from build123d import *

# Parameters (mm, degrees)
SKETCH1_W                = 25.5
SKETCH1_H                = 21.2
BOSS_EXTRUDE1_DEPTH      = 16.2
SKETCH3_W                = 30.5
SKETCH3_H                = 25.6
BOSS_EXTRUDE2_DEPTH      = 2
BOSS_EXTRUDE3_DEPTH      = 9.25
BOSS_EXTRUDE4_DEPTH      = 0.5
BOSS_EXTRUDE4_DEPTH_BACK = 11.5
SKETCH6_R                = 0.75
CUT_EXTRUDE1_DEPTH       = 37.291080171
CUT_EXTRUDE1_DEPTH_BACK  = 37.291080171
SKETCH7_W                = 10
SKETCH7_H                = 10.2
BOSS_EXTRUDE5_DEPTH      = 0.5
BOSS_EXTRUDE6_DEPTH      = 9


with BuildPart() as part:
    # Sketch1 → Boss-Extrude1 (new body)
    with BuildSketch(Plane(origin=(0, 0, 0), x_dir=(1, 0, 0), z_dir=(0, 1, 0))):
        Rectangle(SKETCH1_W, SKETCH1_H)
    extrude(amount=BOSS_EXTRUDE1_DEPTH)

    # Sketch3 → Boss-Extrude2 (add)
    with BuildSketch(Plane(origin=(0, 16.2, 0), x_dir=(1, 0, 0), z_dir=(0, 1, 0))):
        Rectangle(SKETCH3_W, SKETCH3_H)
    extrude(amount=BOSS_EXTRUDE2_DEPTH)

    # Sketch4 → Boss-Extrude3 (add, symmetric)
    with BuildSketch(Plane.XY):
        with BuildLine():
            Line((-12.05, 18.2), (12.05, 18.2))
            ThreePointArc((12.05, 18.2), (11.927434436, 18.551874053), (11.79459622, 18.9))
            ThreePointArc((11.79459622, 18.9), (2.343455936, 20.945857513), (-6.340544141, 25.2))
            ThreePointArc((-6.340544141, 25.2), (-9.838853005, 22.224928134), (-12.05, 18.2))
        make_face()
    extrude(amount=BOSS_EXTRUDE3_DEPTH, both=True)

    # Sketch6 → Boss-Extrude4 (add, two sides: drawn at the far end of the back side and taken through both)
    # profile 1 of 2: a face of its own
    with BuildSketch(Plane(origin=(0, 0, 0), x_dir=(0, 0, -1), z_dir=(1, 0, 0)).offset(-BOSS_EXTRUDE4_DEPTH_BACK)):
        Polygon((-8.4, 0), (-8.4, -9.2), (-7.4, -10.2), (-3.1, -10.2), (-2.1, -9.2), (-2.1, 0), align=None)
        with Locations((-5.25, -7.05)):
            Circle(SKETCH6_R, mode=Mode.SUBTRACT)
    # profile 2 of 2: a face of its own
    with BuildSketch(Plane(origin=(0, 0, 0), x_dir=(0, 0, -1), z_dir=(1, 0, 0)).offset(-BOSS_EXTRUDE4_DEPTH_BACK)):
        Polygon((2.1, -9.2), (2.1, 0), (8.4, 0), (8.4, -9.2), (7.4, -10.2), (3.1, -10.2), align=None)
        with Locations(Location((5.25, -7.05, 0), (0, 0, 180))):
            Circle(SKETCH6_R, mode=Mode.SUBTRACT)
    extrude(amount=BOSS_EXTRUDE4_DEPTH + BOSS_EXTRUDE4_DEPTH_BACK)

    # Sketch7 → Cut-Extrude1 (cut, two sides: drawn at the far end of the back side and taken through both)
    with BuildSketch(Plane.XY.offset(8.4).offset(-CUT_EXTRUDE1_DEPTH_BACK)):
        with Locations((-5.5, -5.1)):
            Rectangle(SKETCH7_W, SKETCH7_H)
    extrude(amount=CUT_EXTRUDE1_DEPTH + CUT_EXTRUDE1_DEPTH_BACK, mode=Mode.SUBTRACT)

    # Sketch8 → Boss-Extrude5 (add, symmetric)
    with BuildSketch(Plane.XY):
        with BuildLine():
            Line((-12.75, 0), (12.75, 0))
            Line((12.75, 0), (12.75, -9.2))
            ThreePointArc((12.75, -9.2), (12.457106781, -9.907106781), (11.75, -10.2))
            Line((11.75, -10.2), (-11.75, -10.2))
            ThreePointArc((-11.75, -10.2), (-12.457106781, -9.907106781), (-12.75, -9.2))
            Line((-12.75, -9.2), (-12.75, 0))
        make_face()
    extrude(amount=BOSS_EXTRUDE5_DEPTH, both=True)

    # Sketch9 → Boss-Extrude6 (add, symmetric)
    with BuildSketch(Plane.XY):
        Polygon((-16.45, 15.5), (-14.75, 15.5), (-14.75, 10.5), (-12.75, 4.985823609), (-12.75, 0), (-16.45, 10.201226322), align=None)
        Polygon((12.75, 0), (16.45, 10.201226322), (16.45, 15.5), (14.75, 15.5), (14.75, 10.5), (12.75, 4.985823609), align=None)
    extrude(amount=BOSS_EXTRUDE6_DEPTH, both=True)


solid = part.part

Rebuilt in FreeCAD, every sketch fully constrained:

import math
import FreeCAD as App
import Part
import Sketcher


def add_polygon(sketch, points):
    """Adds a closed chain of lines whose ends are joined by coincident constraints."""
    first, n = sketch.GeometryCount, len(points)
    for a, b in zip(points, points[1:] + points[:1]):
        sketch.addGeometry(Part.LineSegment(App.Vector(*a, 0), App.Vector(*b, 0)), False)
    for i in range(n):
        sketch.addConstraint(Sketcher.Constraint("Coincident", first + i, 2, first + (i + 1) % n, 1))

doc = App.newDocument("Part")
params = doc.addObject("Spreadsheet::Sheet", "Params")
for row, (alias, value) in enumerate([
    ("sketch1_width", "25.5 mm"),
    ("sketch1_height", "21.2 mm"),
    ("pad1_length", "16.2 mm"),
    ("sketch2_width", "30.5 mm"),
    ("sketch2_height", "25.6 mm"),
    ("pad2_length", "2 mm"),
    ("sketch3_radius", "40 mm"),
    ("sketch3_width", "24.1 mm"),
    ("pad3_length", "18.5 mm"),
    ("sketch4_diameter", "1.5 mm"),
    ("sketch4_width", "9.2 mm"),
    ("sketch4_height", "4.3 mm"),
    ("sketch4_height2", "6.3 mm"),
    ("pad4_length", "0.5 mm"),
    ("pad4_length2", "11.5 mm"),
    ("sketch5_width", "10 mm"),
    ("sketch5_height", "10.2 mm"),
    ("sketch6_radius", "1 mm"),
    ("sketch6_width", "25.5 mm"),
    ("sketch6_height", "9.2 mm"),
    ("pad5_length", "1 mm"),
    ("sketch7_height", "5 mm"),
    ("sketch7_width", "1.7 mm"),
    ("pad6_length", "18 mm"),
], start=1):
    params.set(f"A{row}", alias)
    params.set(f"B{row}", "=" + value)
    params.setAlias(f"B{row}", alias)

body = doc.addObject("PartDesign::Body", "Body")

sketch1 = body.newObject("Sketcher::SketchObject", "Sketch")
sketch1.AttachmentSupport = (doc.getObject("XZ_Plane"), [""])
sketch1.MapMode = "FlatFace"
add_polygon(sketch1, [(-12.75, -10.6), (-12.75, 10.6), (12.75, 10.6), (12.75, -10.6)])
sketch1.addConstraint([
    Sketcher.Constraint("Vertical", 0),
    Sketcher.Constraint("Horizontal", 1),
    Sketcher.Constraint("Vertical", 2),
    Sketcher.Constraint("Horizontal", 3),
    Sketcher.Constraint("Symmetric", 0, 2, 2, 2, -1, 1),
    Sketcher.Constraint("DistanceX", 1, 1, 1, 2, 25.5),
    Sketcher.Constraint("DistanceY", 0, 1, 0, 2, 21.2),
])
sketch1.setExpression("Constraints[9]", "Params.sketch1_width")
sketch1.setExpression("Constraints[10]", "Params.sketch1_height")
pad1 = body.newObject("PartDesign::Pad", "Pad")
pad1.Profile = sketch1
pad1.setExpression("Length", "Params.pad1_length")
pad1.Reversed = True

sketch2 = body.newObject("Sketcher::SketchObject", "Sketch001")
sketch2.AttachmentSupport = (doc.getObject("XZ_Plane"), [""])
sketch2.MapMode = "FlatFace"
sketch2.AttachmentOffset = App.Placement(App.Vector(0, 0, -16.2), App.Rotation())
add_polygon(sketch2, [(-15.25, -12.8), (-15.25, 12.8), (15.25, 12.8), (15.25, -12.8)])
sketch2.addConstraint([
    Sketcher.Constraint("Vertical", 0),
    Sketcher.Constraint("Horizontal", 1),
    Sketcher.Constraint("Vertical", 2),
    Sketcher.Constraint("Horizontal", 3),
    Sketcher.Constraint("Symmetric", 0, 2, 2, 2, -1, 1),
    Sketcher.Constraint("DistanceX", 1, 1, 1, 2, 30.5),
    Sketcher.Constraint("DistanceY", 0, 1, 0, 2, 25.6),
])
sketch2.setExpression("Constraints[9]", "Params.sketch2_width")
sketch2.setExpression("Constraints[10]", "Params.sketch2_height")
pad2 = body.newObject("PartDesign::Pad", "Pad001")
pad2.Profile = sketch2
pad2.setExpression("Length", "Params.pad2_length")
pad2.Reversed = True

sketch3 = body.newObject("Sketcher::SketchObject", "Sketch002")
sketch3.AttachmentSupport = (doc.getObject("XY_Plane"), [""])
sketch3.MapMode = "FlatFace"
sketch3.addGeometry([
    Part.LineSegment(App.Vector(-12.05, 18.2, 0), App.Vector(12.05, 18.2, 0)),
    Part.ArcOfCircle(Part.Circle(App.Vector(0, 14.2, 0), App.Vector(0, 0, 1), 12.696554), math.radians(18.363597), math.radians(21.726667)),
    Part.ArcOfCircle(Part.Circle(App.Vector(15.469643, 58.730818, 0), App.Vector(0, 0, 1), 40), math.radians(-123.04207), math.radians(-95.271551)),
    Part.ArcOfCircle(Part.Circle(App.Vector(0, 14.2, 0), App.Vector(0, 0, 1), 12.696555), math.radians(119.959712), math.radians(161.636403)),
], False)
sketch3.addConstraint([
    Sketcher.Constraint("Coincident", 0, 2, 1, 1),
    Sketcher.Constraint("Coincident", 1, 2, 2, 2),
    Sketcher.Constraint("Coincident", 2, 1, 3, 1),
    Sketcher.Constraint("Coincident", 3, 2, 0, 1),
    Sketcher.Constraint("Horizontal", 0),
    Sketcher.Constraint("Coincident", 3, 3, 1, 3),
    Sketcher.Constraint("Equal", 1, 3),
    Sketcher.Constraint("PointOnObject", 1, 3, -2),
    Sketcher.Constraint("Radius", 2, 40.0),
    Sketcher.Constraint("DistanceX", 0, 1, 0, 2, 24.1),
    Sketcher.Constraint("DistanceY", 1, 3, 0, 2, 4.0),
    Sketcher.Constraint("DistanceY", 3, 3, 2, 1, 11.0),
    Sketcher.Constraint("DistanceY", -1, 1, 1, 3, 14.2),
    Sketcher.Constraint("DistanceY", -1, 1, 1, 2, 18.9),
])
sketch3.setExpression("Constraints[8]", "Params.sketch3_radius")
sketch3.setExpression("Constraints[9]", "Params.sketch3_width")
pad3 = body.newObject("PartDesign::Pad", "Pad002")
pad3.Profile = sketch3
pad3.setExpression("Length", "Params.pad3_length")
pad3.Midplane = True

sketch4 = body.newObject("Sketcher::SketchObject", "Sketch003")
sketch4.AttachmentSupport = (doc.getObject("YZ_Plane"), [""])
sketch4.MapMode = "FlatFace"
add_polygon(sketch4, [(0, 8.4), (-9.2, 8.4), (-10.2, 7.4), (-10.2, 3.1), (-9.2, 2.1), (0, 2.1)])
sketch4.addGeometry(Part.Circle(App.Vector(-7.05, 5.25, 0), App.Vector(0, 0, 1), 0.75), False)
add_polygon(sketch4, [(0, -2.1), (-9.2, -2.1), (-10.2, -3.1), (-10.2, -7.4), (-9.2, -8.4), (0, -8.4)])
sketch4.addGeometry(Part.Circle(App.Vector(-7.05, -5.25, 0), App.Vector(0, 0, 1), 0.75), False)
sketch4.addConstraint([
    Sketcher.Constraint("Horizontal", 0),
    Sketcher.Constraint("Vertical", 2),
    Sketcher.Constraint("Horizontal", 4),
    Sketcher.Constraint("Vertical", 5),
    Sketcher.Constraint("Horizontal", 7),
    Sketcher.Constraint("Vertical", 9),
    Sketcher.Constraint("Horizontal", 11),
    Sketcher.Constraint("Vertical", 12),
    Sketcher.Constraint("Equal", 6, 13),
    Sketcher.Constraint("Symmetric", 5, 2, 11, 2, -1, 1),
    Sketcher.Constraint("Symmetric", 6, 3, 13, 3, -1),
    Sketcher.Constraint("Symmetric", 3, 2, 7, 2, -1),
    Sketcher.Constraint("Symmetric", 2, 2, 8, 2, -1),
    Sketcher.Constraint("PointOnObject", 4, 2, -2),
    Sketcher.Constraint("Perpendicular", 1, 3),
    Sketcher.Constraint("Perpendicular", 3, 8),
    Sketcher.Constraint("Perpendicular", 8, 10),
    Sketcher.Constraint("Vertical", 0, 2, 3, 2),
    Sketcher.Constraint("Vertical", 7, 2, 10, 2),
    Sketcher.Constraint("Diameter", 6, 1.5),
    Sketcher.Constraint("DistanceX", 0, 2, 0, 1, 9.2),
    Sketcher.Constraint("DistanceY", 2, 2, 2, 1, 4.3),
    Sketcher.Constraint("DistanceY", 5, 1, 5, 2, 6.3),
    Sketcher.Constraint("DistanceY", -1, 1, 0, 2, 8.4),
    Sketcher.Constraint("DistanceY", 13, 3, 6, 3, 10.5),
    Sketcher.Constraint("DistanceX", 6, 3, -1, 1, 7.05),
])
sketch4.setExpression("Constraints[31]", "Params.sketch4_diameter")
sketch4.setExpression("Constraints[32]", "Params.sketch4_width")
sketch4.setExpression("Constraints[33]", "Params.sketch4_height")
sketch4.setExpression("Constraints[34]", "Params.sketch4_height2")
pad4 = body.newObject("PartDesign::Pad", "Pad003")
pad4.Profile = sketch4
pad4.Type = "TwoLengths"
pad4.setExpression("Length", "Params.pad4_length")
pad4.setExpression("Length2", "Params.pad4_length2")

sketch5 = body.newObject("Sketcher::SketchObject", "Sketch004")
sketch5.AttachmentSupport = (doc.getObject("XY_Plane"), [""])
sketch5.MapMode = "FlatFace"
sketch5.AttachmentOffset = App.Placement(App.Vector(0, 0, 8.4), App.Rotation())
add_polygon(sketch5, [(-10.5, 0), (-10.5, -10.2), (-0.5, -10.2), (-0.5, 0)])
sketch5.addConstraint([
    Sketcher.Constraint("Vertical", 0),
    Sketcher.Constraint("Horizontal", 1),
    Sketcher.Constraint("Vertical", 2),
    Sketcher.Constraint("Horizontal", 3),
    Sketcher.Constraint("PointOnObject", 2, 2, -1),
    Sketcher.Constraint("DistanceX", 1, 1, 1, 2, 10.0),
    Sketcher.Constraint("DistanceY", 0, 2, 0, 1, 10.2),
    Sketcher.Constraint("DistanceX", 0, 2, -1, 1, 10.5),
])
sketch5.setExpression("Constraints[9]", "Params.sketch5_width")
sketch5.setExpression("Constraints[10]", "Params.sketch5_height")
pocket1 = body.newObject("PartDesign::Pocket", "Pocket")
pocket1.Profile = sketch5
pocket1.Type = "ThroughAll"
pocket1.Midplane = True

sketch6 = body.newObject("Sketcher::SketchObject", "Sketch005")
sketch6.AttachmentSupport = (doc.getObject("XY_Plane"), [""])
sketch6.MapMode = "FlatFace"
sketch6.addGeometry([
    Part.LineSegment(App.Vector(12.75, 0, 0), App.Vector(-12.75, 0, 0)),
    Part.LineSegment(App.Vector(-12.75, 0, 0), App.Vector(-12.75, -9.2, 0)),
    Part.ArcOfCircle(Part.Circle(App.Vector(-11.75, -9.2, 0), App.Vector(0, 0, 1), 1), math.radians(-180), math.radians(-90)),
    Part.LineSegment(App.Vector(-11.75, -10.2, 0), App.Vector(11.75, -10.2, 0)),
    Part.ArcOfCircle(Part.Circle(App.Vector(11.75, -9.2, 0), App.Vector(0, 0, 1), 1), math.radians(-90), math.radians(0)),
    Part.LineSegment(App.Vector(12.75, -9.2, 0), App.Vector(12.75, 0, 0)),
], False)
sketch6.addConstraint([
    Sketcher.Constraint("Coincident", 0, 2, 1, 1),
    Sketcher.Constraint("Tangent", 1, 2, 2, 1),
    Sketcher.Constraint("Tangent", 2, 2, 3, 1),
    Sketcher.Constraint("Tangent", 3, 2, 4, 1),
    Sketcher.Constraint("Tangent", 4, 2, 5, 1),
    Sketcher.Constraint("Coincident", 5, 2, 0, 1),
    Sketcher.Constraint("Horizontal", 0),
    Sketcher.Constraint("Vertical", 1),
    Sketcher.Constraint("Horizontal", 3),
    Sketcher.Constraint("Vertical", 5),
    Sketcher.Constraint("Equal", 2, 4),
    Sketcher.Constraint("Symmetric", 0, 2, 5, 2, -1, 1),
    Sketcher.Constraint("Radius", 2, 1.0),
    Sketcher.Constraint("DistanceX", 0, 2, 0, 1, 25.5),
    Sketcher.Constraint("DistanceY", 1, 2, 1, 1, 9.2),
])
sketch6.setExpression("Constraints[12]", "Params.sketch6_radius")
sketch6.setExpression("Constraints[13]", "Params.sketch6_width")
sketch6.setExpression("Constraints[14]", "Params.sketch6_height")
pad5 = body.newObject("PartDesign::Pad", "Pad004")
pad5.Profile = sketch6
pad5.setExpression("Length", "Params.pad5_length")
pad5.Midplane = True

sketch7 = body.newObject("Sketcher::SketchObject", "Sketch006")
sketch7.AttachmentSupport = (doc.getObject("XY_Plane"), [""])
sketch7.MapMode = "FlatFace"
add_polygon(sketch7, [(-14.75, 15.5), (-16.45, 15.5), (-16.45, 10.201226), (-12.75, 0), (-12.75, 4.985824), (-14.75, 10.5)])
add_polygon(sketch7, [(12.75, 0), (16.45, 10.201226), (16.45, 15.5), (14.75, 15.5), (14.75, 10.5), (12.75, 4.985824)])
sketch7.addConstraint([
    Sketcher.Constraint("Horizontal", 0),
    Sketcher.Constraint("Vertical", 1),
    Sketcher.Constraint("Vertical", 3),
    Sketcher.Constraint("Vertical", 5),
    Sketcher.Constraint("Vertical", 7),
    Sketcher.Constraint("Horizontal", 8),
    Sketcher.Constraint("Vertical", 9),
    Sketcher.Constraint("Vertical", 11),
    Sketcher.Constraint("Symmetric", 2, 2, 11, 2, -1, 1),
    Sketcher.Constraint("Symmetric", 1, 2, 6, 2, -2),
    Sketcher.Constraint("Symmetric", 5, 2, 8, 2, -2),
    Sketcher.Constraint("PointOnObject", 2, 2, -1),
    Sketcher.Constraint("Parallel", 2, 4),
    Sketcher.Constraint("Parallel", 6, 10),
    Sketcher.Constraint("Horizontal", 4, 2, 9, 2),
    Sketcher.Constraint("DistanceY", 5, 1, 5, 2, 5.0),
    Sketcher.Constraint("DistanceX", 0, 2, 0, 1, 1.7),
    Sketcher.Constraint("DistanceX", 4, 2, 3, 2, 2.0),
    Sketcher.Constraint("DistanceY", -1, 1, 0, 2, 15.5),
    Sketcher.Constraint("DistanceX", 3, 2, 6, 2, 29.2),
    Sketcher.Constraint("Distance", 2, 10.851498),
])
sketch7.setExpression("Constraints[27]", "Params.sketch7_height")
sketch7.setExpression("Constraints[28]", "Params.sketch7_width")
pad6 = body.newObject("PartDesign::Pad", "Pad005")
pad6.Profile = sketch7
pad6.setExpression("Length", "Params.pad6_length")
pad6.Midplane = True

doc.recompute()
